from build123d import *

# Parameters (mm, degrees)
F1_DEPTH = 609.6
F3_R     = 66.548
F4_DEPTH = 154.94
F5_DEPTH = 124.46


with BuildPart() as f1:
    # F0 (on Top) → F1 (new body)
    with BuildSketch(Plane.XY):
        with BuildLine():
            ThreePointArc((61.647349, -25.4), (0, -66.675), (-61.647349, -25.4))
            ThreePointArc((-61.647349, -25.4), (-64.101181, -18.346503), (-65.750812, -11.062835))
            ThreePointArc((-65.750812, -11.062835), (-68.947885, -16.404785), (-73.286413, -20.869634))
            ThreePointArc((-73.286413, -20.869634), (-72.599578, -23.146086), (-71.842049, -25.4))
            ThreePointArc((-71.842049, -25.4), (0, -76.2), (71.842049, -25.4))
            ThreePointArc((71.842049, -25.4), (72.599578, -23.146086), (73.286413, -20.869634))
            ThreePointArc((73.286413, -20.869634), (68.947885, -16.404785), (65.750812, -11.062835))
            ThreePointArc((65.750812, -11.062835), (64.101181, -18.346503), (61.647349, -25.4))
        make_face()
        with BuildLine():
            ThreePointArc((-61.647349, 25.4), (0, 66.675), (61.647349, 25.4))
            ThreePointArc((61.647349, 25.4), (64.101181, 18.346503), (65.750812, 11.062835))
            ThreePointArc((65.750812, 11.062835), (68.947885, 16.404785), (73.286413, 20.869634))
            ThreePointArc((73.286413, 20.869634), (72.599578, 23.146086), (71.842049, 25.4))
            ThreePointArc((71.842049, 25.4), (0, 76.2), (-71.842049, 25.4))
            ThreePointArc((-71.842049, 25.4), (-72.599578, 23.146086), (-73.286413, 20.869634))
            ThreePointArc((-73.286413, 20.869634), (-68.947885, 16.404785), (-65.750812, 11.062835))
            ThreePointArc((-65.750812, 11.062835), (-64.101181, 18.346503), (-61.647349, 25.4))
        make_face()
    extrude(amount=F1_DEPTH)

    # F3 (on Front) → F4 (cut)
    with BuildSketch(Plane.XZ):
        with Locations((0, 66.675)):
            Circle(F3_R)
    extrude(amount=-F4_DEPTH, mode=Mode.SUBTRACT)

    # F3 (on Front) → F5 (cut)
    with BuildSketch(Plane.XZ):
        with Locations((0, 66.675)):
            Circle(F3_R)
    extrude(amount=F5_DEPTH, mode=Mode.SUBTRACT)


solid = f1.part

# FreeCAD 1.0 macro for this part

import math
import FreeCAD as App
import Part
import Sketcher
Q = App.Units.Quantity

doc = App.newDocument("Part")
body = doc.addObject("PartDesign::Body", "Body")
body.AllowCompound = True

sketch1 = doc.addObject("Sketcher::SketchObject", "Sketch")
body.addObject(sketch1)
sketch1.AttachmentSupport = (doc.XY_Plane, [""])
sketch1.MapMode = "FlatFace"
sketch1.addGeometry([
    Part.ArcOfCircle(Part.Circle(App.Vector(0, 0, 0), App.Vector(0, 0, 1), 66.7), math.radians(-158), math.radians(-22)),
    Part.ArcOfCircle(Part.Circle(App.Vector(0, 0, 0), App.Vector(0, 0, 1), 66.7), math.radians(-170.45), math.radians(-157.61)),
    Part.ArcOfCircle(Part.Circle(App.Vector(-90.3, 0, 0), App.Vector(0, 0, 1), 26.9), math.radians(-51), math.radians(-24)),
    Part.ArcOfCircle(Part.Circle(App.Vector(0, 0, 0), App.Vector(0, 0, 1), 76.2), math.radians(-164.1), math.radians(-160.53)),
    Part.ArcOfCircle(Part.Circle(App.Vector(0, 0, 0), App.Vector(0, 0, 1), 76.2), math.radians(-161), math.radians(-19)),
    Part.ArcOfCircle(Part.Circle(App.Vector(0, 0, 0), App.Vector(0, 0, 1), 76.2), math.radians(-19.47), math.radians(-15.9)),
    Part.ArcOfCircle(Part.Circle(App.Vector(90.3, 0, 0), App.Vector(0, 0, 1), 26.9), math.radians(-156), math.radians(-129)),
    Part.ArcOfCircle(Part.Circle(App.Vector(0, 0, 0), App.Vector(0, 0, 1), 66.7), math.radians(-22.39), math.radians(-9.55)),
    Part.ArcOfCircle(Part.Circle(App.Vector(0, 0, 0), App.Vector(0, 0, 1), 66.7), math.radians(22), math.radians(158)),
    Part.ArcOfCircle(Part.Circle(App.Vector(0, 0, 0), App.Vector(0, 0, 1), 66.7), math.radians(9.55), math.radians(22.39)),
    Part.ArcOfCircle(Part.Circle(App.Vector(90.3, 0, 0), App.Vector(0, 0, 1), 26.9), math.radians(129), math.radians(156)),
    Part.ArcOfCircle(Part.Circle(App.Vector(0, 0, 0), App.Vector(0, 0, 1), 76.2), math.radians(15.9), math.radians(19.47)),
    Part.ArcOfCircle(Part.Circle(App.Vector(0, 0, 0), App.Vector(0, 0, 1), 76.2), math.radians(19), math.radians(161)),
    Part.ArcOfCircle(Part.Circle(App.Vector(0, 0, 0), App.Vector(0, 0, 1), 76.2), math.radians(160.53), math.radians(164.1)),
    Part.ArcOfCircle(Part.Circle(App.Vector(-90.3, 0, 0), App.Vector(0, 0, 1), 26.9), math.radians(24), math.radians(51)),
    Part.ArcOfCircle(Part.Circle(App.Vector(0, 0, 0), App.Vector(0, 0, 1), 66.7), math.radians(157.61), math.radians(170.45)),
], False)
sketch1.addConstraint([
    Sketcher.Constraint("Tangent", 0, 1, 1, 2),
    Sketcher.Constraint("Coincident", 1, 1, 2, 2),
    Sketcher.Constraint("Coincident", 2, 1, 3, 1),
    Sketcher.Constraint("Tangent", 3, 2, 4, 1),
    Sketcher.Constraint("Tangent", 4, 2, 5, 1),
    Sketcher.Constraint("Coincident", 5, 2, 6, 2),
    Sketcher.Constraint("Coincident", 6, 1, 7, 2),
    Sketcher.Constraint("Tangent", 7, 1, 0, 2),
    Sketcher.Constraint("Tangent", 8, 1, 9, 2),
    Sketcher.Constraint("Coincident", 9, 1, 10, 2),
    Sketcher.Constraint("Coincident", 10, 1, 11, 1),
    Sketcher.Constraint("Tangent", 11, 2, 12, 1),
    Sketcher.Constraint("Tangent", 12, 2, 13, 1),
    Sketcher.Constraint("Coincident", 13, 2, 14, 2),
    Sketcher.Constraint("Coincident", 14, 1, 15, 2),
    Sketcher.Constraint("Tangent", 15, 1, 8, 2),
    Sketcher.Constraint("Coincident", 0, 3, -1, 1),
    Sketcher.Constraint("Coincident", 4, 3, -1, 1),
    Sketcher.Constraint("Coincident", 8, 3, -1, 1),
    Sketcher.Constraint("Coincident", 12, 3, -1, 1),
    Sketcher.Constraint("Coincident", 10, 3, 6, 3),
    Sketcher.Constraint("Coincident", 14, 3, 2, 3),
    Sketcher.Constraint("Equal", 3, 5),
    Sketcher.Constraint("Equal", 2, 6),
    Sketcher.Constraint("Equal", 1, 7),
    Sketcher.Constraint("Equal", 0, 8),
    Sketcher.Constraint("Equal", 7, 9),
    Sketcher.Constraint("Equal", 6, 10),
    Sketcher.Constraint("Equal", 5, 11),
    Sketcher.Constraint("Equal", 4, 12),
    Sketcher.Constraint("Equal", 11, 13),
    Sketcher.Constraint("Equal", 10, 14),
    Sketcher.Constraint("Equal", 9, 15),
    Sketcher.Constraint("Symmetric", 2, 3, 6, 3, -1, 1),
    Sketcher.Constraint("Horizontal", 2, 3, 6, 3),
    Sketcher.Constraint("Horizontal", 0, 1, 3, 2),
    Sketcher.Constraint("Horizontal", 3, 2, 4, 2),
    Sketcher.Constraint("Horizontal", 4, 2, 7, 1),
    Sketcher.Constraint("Horizontal", 8, 1, 11, 2),
    Sketcher.Constraint("Horizontal", 11, 2, 12, 2),
    Sketcher.Constraint("Horizontal", 12, 2, 15, 1),
    Sketcher.Constraint("Vertical", 7, 1, 8, 1),
    Sketcher.Constraint("Radius", 4, Q("3 in")),
    Sketcher.Constraint("Radius", 2, Q("1.0599998 in")),
    Sketcher.Constraint("DistanceY", 0, 1, -1, 1, Q("1 in")),
    Sketcher.Constraint("Radius", 0, Q("2.625 in")),
    Sketcher.Constraint("DistanceX", 2, 3, -1, 1, Q("3.5549999 in")),
    Sketcher.Constraint("Radius", 3, Q("76.19941 mm")),
    Sketcher.Constraint("Radius", 1, Q("66.675047 mm")),
])
pad1 = doc.addObject("PartDesign::Pad", "Pad")
body.addObject(pad1)
pad1.Profile = sketch1
pad1.Length = Q("24 in")

sketch2 = doc.addObject("Sketcher::SketchObject", "Sketch001")
body.addObject(sketch2)
sketch2.AttachmentSupport = (doc.XZ_Plane, [""])
sketch2.MapMode = "FlatFace"
sketch2.addGeometry(Part.Circle(App.Vector(0, 67, 0), App.Vector(0, 0, 1), 67), False)
sketch2.addConstraint([
    Sketcher.Constraint("PointOnObject", 0, 3, -2),
    Sketcher.Constraint("Diameter", 0, Q("5.24 in")),
    Sketcher.Constraint("DistanceY", -1, 1, 0, 3, Q("2.625 in")),
])
pocket1 = doc.addObject("PartDesign::Pocket", "Pocket")
body.addObject(pocket1)
pocket1.Profile = sketch2
pocket1.Length = Q("6.1 in")

sketch3 = doc.addObject("Sketcher::SketchObject", "Sketch002")
body.addObject(sketch3)
sketch3.AttachmentSupport = (doc.XZ_Plane, [""])
sketch3.MapMode = "FlatFace"
sketch3.addGeometry(Part.Circle(App.Vector(0, 67, 0), App.Vector(0, 0, 1), 67), False)
sketch3.addConstraint([
    Sketcher.Constraint("PointOnObject", 0, 3, -2),
    Sketcher.Constraint("Diameter", 0, Q("5.24 in")),
    Sketcher.Constraint("DistanceY", -1, 1, 0, 3, Q("2.625 in")),
])
pocket2 = doc.addObject("PartDesign::Pocket", "Pocket001")
body.addObject(pocket2)
pocket2.Profile = sketch3
pocket2.Length = Q("4.9 in")
pocket2.Reversed = True

doc.recompute()
